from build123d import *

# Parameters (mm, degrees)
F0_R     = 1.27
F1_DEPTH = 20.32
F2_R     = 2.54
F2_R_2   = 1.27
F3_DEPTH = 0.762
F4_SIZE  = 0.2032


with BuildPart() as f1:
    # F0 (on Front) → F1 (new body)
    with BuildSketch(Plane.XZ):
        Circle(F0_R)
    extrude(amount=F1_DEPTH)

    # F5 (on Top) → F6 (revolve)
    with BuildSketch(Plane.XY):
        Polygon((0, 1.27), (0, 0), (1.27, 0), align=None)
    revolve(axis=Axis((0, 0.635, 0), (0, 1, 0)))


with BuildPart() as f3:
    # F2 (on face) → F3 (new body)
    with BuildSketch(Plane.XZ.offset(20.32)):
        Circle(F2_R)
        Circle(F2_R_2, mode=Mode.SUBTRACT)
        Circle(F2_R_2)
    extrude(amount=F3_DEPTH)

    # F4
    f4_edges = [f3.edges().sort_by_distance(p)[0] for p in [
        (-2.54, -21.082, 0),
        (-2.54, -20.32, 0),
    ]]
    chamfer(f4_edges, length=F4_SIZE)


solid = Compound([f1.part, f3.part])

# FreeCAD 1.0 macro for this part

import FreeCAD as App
import Part
import Sketcher

V = App.Vector
Q = App.Units.Quantity


def edges_at(feature, points):
    """Names of the edges that pass closest to the given points."""
    edges = feature.Shape.Edges
    near = lambda p: min(range(len(edges)), key=lambda i: edges[i].distToShape(Part.Vertex(*p))[0])
    return sorted({f"Edge{near(p) + 1}" for p in points})


def add_polygon(sketch, points):
    """Adds a closed chain of lines whose ends are joined by coincident constraints."""
    first, n = sketch.GeometryCount, len(points)
    for a, b in zip(points, points[1:] + points[:1]):
        sketch.addGeometry(Part.LineSegment(App.Vector(*a, 0), App.Vector(*b, 0)), False)
    for i in range(n):
        sketch.addConstraint(Sketcher.Constraint("Coincident", first + i, 2, first + (i + 1) % n, 1))

doc = App.newDocument("Part")
body = doc.addObject("PartDesign::Body", "Body")

# Sketch on XZ plane
sketch1 = doc.addObject("Sketcher::SketchObject", "Sketch")
body.addObject(sketch1)
sketch1.AttachmentSupport = (doc.XZ_Plane, [""])
sketch1.MapMode = "FlatFace"
sketch1.addGeometry(Part.Circle(V(0, 0, 0), V(0, 0, 1), 1.3), False)
sketch1.addConstraint([
    Sketcher.Constraint("Coincident", 0, 3, -1, 1),
    Sketcher.Constraint("Diameter", 0, Q("0.1 in")),
])
pad1 = doc.addObject("PartDesign::Pad", "Pad")
body.addObject(pad1)
pad1.Profile = sketch1
pad1.Length = Q("0.8 in")

# Sketch on XY plane
sketch2 = doc.addObject("Sketcher::SketchObject", "Sketch001")
body.addObject(sketch2)
sketch2.AttachmentSupport = (doc.XY_Plane, [""])
sketch2.MapMode = "FlatFace"
add_polygon(sketch2, [(0, 1.3), (0, 0), (1.3, 0)])  # lines 0-2
sketch2.addConstraint([
    Sketcher.Constraint("Vertical", 0),
    Sketcher.Constraint("Horizontal", 1),
    Sketcher.Constraint("Coincident", 0, 2, -1, 1),
    Sketcher.Constraint("Equal", 1, 0),
    Sketcher.Constraint("DistanceX", 1, 1, 1, 2, Q("0.05 in")),
])
revolution = doc.addObject("PartDesign::Revolution", "Revolution")
body.addObject(revolution)
revolution.Profile = sketch2
revolution.ReferenceAxis = (sketch2, ["V_Axis"])
revolution.Angle = 360
body2 = doc.addObject("PartDesign::Body", "Body001")

# Sketch on XZ plane
sketch3 = doc.addObject("Sketcher::SketchObject", "Sketch002")
body2.addObject(sketch3)
sketch3.AttachmentSupport = (doc.getObject("XZ_Plane001"), [""])
sketch3.MapMode = "FlatFace"
sketch3.AttachmentOffset = App.Placement(V(0, 0, 0.8 * 25.4), App.Rotation())
sketch3.addGeometry(Part.Circle(V(0, 0, 0), V(0, 0, 1), 2.5), False)
sketch3.addConstraint([
    Sketcher.Constraint("Coincident", 0, 3, -1, 1),
    Sketcher.Constraint("Diameter", 0, Q("0.2 in")),
])
pad2 = doc.addObject("PartDesign::Pad", "Pad001")
body2.addObject(pad2)
pad2.Profile = sketch3
pad2.Length = Q("0.03 in")
doc.recompute()

chamfer = doc.addObject("PartDesign::Chamfer", "Chamfer")
body2.addObject(chamfer)
chamfer.Base = (pad2, edges_at(pad2, [(-2.54, -21.082, 0), (-2.54, -20.32, 0)]))
chamfer.Size = Q("0.008 in")

doc.recompute()
